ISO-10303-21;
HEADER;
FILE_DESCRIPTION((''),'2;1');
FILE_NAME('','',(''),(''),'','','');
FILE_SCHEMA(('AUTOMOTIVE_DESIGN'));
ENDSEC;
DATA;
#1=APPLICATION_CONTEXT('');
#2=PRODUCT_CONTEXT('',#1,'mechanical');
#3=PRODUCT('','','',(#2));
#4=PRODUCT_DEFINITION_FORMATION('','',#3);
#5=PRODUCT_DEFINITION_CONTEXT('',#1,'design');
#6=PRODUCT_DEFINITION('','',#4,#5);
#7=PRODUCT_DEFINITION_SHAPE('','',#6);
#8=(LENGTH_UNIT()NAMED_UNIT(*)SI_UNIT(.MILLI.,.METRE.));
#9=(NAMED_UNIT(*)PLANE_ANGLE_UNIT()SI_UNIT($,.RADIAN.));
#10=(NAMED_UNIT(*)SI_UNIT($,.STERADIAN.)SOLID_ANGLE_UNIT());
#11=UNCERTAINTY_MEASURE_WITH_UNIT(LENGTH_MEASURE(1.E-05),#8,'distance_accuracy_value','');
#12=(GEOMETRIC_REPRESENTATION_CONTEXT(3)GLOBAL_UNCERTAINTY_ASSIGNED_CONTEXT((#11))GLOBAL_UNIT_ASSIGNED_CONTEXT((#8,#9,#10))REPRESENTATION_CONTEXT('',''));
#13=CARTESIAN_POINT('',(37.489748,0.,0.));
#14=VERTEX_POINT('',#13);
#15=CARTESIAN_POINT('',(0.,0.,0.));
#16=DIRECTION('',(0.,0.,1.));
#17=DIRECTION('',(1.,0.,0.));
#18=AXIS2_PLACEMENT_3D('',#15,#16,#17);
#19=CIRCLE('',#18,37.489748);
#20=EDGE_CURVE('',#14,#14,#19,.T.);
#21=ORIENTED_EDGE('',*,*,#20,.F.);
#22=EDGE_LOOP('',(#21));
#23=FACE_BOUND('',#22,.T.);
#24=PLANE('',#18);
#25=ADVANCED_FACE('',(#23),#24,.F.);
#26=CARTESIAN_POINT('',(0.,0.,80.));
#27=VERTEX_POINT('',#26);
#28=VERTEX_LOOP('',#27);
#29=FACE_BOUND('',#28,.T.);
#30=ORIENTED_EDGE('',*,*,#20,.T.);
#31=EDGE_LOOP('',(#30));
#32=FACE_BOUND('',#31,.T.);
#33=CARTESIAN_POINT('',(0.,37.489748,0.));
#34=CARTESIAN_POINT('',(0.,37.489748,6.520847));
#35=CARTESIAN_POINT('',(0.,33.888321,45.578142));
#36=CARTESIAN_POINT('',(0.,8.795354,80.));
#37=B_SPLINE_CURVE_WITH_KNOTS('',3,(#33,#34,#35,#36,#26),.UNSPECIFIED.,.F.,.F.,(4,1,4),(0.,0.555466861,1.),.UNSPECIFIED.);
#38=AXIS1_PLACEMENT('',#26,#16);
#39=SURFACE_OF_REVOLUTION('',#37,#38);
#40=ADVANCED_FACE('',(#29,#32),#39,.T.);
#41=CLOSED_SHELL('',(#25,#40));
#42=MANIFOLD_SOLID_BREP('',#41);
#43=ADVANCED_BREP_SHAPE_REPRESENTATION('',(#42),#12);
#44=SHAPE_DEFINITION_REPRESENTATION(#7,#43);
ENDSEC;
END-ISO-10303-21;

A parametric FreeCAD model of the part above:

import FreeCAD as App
import Part
import Sketcher

V = App.Vector

doc = App.newDocument("Part")
body = doc.addObject("PartDesign::Body", "Body")

# Sketch on YZ plane
sketch1 = body.newObject("Sketcher::SketchObject", "Sketch")
sketch1.AttachmentSupport = (doc.getObject("YZ_Plane"), [""])
sketch1.MapMode = "FlatFace"
sketch1.addGeometry(Part.LineSegment(V(0, 0, 0), V(37.489748, 0, 0)), False)
sketch1.addGeometry(Part.BSplineCurve([V(0, 80, 0), V(8.795354, 80, 0), V(33.888321, 45.578142, 0), V(37.489748, 6.520847, 0), V(37.489748, 0, 0)], [4, 1, 4], [0, 0.444533139, 1], False, 3, [1, 1, 1, 1, 1], False), False)
sketch1.addGeometry(Part.LineSegment(V(0, 80, 0), V(0, 0, 0)), False)
sketch1.addConstraint(Sketcher.Constraint("Block", 1))
sketch1.addConstraint(Sketcher.Constraint("Coincident", 0, 2, 1, 2))
sketch1.addConstraint(Sketcher.Constraint("Coincident", 1, 1, 2, 1))
sketch1.addConstraint(Sketcher.Constraint("Coincident", 2, 2, 0, 1))
sketch1.addConstraint(Sketcher.Constraint("Horizontal", 0))
sketch1.addConstraint(Sketcher.Constraint("Vertical", 2))
revolution = body.newObject("PartDesign::Revolution", "Revolution")
revolution.Profile = sketch1
revolution.ReferenceAxis = (sketch1, ["V_Axis"])
revolution.Angle = 360

doc.recompute()
